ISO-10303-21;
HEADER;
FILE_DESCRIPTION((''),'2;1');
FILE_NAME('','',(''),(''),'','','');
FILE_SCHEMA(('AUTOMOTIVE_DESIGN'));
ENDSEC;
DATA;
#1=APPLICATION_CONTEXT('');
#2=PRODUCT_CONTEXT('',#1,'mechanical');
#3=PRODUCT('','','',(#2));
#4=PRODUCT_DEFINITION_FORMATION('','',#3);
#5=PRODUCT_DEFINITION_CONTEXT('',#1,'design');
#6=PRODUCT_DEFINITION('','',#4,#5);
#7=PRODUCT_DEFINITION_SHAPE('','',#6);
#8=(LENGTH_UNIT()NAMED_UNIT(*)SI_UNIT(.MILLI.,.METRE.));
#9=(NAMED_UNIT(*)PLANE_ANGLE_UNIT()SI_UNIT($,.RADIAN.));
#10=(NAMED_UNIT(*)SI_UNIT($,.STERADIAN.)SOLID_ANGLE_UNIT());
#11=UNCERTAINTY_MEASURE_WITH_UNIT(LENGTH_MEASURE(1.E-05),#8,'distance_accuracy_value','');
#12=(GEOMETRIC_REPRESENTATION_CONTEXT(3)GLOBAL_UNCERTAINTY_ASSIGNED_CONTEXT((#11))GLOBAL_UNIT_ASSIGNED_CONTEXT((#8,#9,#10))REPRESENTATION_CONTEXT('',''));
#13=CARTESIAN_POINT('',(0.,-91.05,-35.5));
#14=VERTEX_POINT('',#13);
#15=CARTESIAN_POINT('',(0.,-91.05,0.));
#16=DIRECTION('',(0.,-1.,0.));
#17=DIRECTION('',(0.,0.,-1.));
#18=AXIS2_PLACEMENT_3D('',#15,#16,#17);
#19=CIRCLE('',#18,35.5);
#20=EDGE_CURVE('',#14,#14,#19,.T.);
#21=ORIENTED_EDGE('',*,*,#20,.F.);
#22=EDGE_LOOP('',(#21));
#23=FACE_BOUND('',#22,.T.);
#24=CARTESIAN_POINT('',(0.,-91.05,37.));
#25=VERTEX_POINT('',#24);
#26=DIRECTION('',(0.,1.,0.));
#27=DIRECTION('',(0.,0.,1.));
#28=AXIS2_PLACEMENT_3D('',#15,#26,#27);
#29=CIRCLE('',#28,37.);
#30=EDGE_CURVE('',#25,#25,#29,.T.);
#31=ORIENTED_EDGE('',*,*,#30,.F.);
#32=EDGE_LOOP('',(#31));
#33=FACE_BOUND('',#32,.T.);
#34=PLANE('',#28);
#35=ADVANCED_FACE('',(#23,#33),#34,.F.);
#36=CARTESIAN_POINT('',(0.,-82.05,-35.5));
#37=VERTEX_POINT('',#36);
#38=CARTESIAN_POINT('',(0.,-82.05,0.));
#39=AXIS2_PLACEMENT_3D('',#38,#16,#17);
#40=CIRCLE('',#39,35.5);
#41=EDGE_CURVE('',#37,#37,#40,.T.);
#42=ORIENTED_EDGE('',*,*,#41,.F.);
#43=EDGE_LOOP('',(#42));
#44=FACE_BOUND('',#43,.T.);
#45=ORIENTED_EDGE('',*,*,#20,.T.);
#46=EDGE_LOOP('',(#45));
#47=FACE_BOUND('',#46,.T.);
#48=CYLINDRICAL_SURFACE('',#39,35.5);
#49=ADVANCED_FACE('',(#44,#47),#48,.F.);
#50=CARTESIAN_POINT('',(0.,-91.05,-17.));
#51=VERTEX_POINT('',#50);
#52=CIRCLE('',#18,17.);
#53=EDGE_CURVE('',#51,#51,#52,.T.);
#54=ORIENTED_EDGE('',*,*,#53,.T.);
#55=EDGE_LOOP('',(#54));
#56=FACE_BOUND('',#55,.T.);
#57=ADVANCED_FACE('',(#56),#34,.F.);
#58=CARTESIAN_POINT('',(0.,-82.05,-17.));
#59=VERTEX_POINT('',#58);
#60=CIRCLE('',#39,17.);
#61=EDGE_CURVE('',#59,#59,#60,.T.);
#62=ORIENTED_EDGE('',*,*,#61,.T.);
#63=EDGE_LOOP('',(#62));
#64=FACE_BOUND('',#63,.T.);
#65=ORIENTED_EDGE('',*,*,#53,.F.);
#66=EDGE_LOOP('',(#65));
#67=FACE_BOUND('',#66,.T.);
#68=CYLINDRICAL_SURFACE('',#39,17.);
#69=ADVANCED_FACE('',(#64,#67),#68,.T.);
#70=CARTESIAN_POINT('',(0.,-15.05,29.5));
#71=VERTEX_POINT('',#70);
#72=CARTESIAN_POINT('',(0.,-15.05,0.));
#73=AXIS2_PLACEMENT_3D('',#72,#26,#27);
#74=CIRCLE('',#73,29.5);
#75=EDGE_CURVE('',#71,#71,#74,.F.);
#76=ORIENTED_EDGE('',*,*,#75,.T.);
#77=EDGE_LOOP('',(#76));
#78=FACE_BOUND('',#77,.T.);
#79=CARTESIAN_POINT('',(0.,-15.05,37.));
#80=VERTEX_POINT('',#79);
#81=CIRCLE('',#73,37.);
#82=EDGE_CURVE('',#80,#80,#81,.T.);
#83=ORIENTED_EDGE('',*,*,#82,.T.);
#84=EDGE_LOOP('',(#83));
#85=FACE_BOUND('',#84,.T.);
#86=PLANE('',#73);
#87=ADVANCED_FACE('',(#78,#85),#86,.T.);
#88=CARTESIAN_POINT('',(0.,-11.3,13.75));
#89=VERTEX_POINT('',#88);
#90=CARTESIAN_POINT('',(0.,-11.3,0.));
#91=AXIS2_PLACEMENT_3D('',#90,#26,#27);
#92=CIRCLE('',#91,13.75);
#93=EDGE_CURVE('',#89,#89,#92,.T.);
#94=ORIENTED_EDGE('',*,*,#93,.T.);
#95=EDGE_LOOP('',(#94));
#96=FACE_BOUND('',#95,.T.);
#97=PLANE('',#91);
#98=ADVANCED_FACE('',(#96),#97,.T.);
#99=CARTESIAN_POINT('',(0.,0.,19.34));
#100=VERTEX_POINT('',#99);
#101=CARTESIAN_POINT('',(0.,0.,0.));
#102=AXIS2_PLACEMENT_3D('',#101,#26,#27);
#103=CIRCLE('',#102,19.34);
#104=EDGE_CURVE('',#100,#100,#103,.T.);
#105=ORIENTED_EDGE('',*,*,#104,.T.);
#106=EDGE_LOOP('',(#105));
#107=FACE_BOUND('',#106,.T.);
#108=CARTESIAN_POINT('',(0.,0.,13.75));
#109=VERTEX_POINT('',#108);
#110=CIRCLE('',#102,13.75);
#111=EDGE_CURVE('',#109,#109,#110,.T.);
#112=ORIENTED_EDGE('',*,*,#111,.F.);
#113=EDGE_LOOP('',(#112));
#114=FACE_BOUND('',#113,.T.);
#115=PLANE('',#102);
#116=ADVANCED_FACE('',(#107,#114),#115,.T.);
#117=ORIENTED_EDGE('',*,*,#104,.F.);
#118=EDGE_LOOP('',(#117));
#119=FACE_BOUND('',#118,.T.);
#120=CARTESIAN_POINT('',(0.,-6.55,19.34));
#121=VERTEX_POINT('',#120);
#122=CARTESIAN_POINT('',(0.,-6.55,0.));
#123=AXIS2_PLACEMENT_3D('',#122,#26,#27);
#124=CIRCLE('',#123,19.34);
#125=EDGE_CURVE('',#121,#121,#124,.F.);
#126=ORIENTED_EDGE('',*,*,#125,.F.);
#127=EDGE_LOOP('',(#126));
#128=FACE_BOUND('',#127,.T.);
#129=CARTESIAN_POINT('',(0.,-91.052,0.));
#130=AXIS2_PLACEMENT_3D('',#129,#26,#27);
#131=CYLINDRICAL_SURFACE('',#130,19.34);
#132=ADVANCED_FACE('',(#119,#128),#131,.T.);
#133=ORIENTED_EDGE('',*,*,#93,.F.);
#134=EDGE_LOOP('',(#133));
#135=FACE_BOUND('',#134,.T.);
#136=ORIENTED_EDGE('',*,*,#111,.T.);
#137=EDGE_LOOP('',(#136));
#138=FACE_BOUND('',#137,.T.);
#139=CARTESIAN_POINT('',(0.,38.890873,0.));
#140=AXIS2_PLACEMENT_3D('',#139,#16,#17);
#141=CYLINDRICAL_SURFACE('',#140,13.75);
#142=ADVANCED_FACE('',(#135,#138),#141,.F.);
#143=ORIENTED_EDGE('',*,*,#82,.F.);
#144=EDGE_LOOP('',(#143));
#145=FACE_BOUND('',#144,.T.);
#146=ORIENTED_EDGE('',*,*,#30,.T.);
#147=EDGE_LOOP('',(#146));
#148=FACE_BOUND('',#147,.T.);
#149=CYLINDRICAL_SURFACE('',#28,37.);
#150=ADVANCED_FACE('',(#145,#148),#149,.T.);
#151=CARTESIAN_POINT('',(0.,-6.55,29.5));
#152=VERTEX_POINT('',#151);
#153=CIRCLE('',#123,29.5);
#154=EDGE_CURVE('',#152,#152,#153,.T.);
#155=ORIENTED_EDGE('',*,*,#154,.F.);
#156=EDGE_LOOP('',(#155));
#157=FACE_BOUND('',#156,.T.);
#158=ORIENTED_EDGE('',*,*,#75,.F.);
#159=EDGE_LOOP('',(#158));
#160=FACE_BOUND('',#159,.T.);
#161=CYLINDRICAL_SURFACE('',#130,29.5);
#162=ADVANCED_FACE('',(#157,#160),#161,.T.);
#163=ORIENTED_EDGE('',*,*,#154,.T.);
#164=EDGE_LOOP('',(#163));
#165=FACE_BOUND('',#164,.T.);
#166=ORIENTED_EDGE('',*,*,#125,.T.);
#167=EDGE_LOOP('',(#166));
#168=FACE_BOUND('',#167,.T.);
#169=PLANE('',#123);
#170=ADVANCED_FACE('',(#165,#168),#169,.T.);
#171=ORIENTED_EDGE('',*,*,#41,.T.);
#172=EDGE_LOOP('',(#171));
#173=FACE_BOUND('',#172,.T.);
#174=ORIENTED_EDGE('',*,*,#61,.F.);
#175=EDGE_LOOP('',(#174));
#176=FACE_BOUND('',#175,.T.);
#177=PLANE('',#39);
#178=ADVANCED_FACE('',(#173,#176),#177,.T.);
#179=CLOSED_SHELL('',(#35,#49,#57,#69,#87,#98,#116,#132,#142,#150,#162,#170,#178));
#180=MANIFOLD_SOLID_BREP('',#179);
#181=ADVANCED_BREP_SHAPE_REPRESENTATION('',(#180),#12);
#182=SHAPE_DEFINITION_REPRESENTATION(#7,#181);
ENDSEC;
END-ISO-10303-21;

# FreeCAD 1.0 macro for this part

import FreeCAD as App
import Part
import Sketcher

doc = App.newDocument("Part")
body = doc.addObject("PartDesign::Body", "Body")

sketch1 = doc.addObject("Sketcher::SketchObject", "Sketch")
body.addObject(sketch1)
sketch1.AttachmentSupport = (doc.XZ_Plane, [""])
sketch1.MapMode = "FlatFace"
sketch1.AttachmentOffset = App.Placement(App.Vector(0, 0, 15.05), App.Rotation())
sketch1.addGeometry(Part.Circle(App.Vector(0, 0, 0), App.Vector(0, 0, 1), 37), False)
sketch1.addConstraint(Sketcher.Constraint("Coincident", 0, 3, -1, 1))
sketch1.addConstraint(Sketcher.Constraint("Diameter", 0, 74.0))
pad1 = doc.addObject("PartDesign::Pad", "Pad")
body.addObject(pad1)
pad1.Profile = sketch1
pad1.Length = 76

sketch2 = doc.addObject("Sketcher::SketchObject", "Sketch001")
body.addObject(sketch2)
sketch2.AttachmentSupport = (doc.XZ_Plane, [""])
sketch2.MapMode = "FlatFace"
sketch2.AttachmentOffset = App.Placement(App.Vector(0, 0, 6.55), App.Rotation())
sketch2.addGeometry(Part.Circle(App.Vector(0, 0, 0), App.Vector(0, 0, 1), 30), False)
sketch2.addConstraint(Sketcher.Constraint("Coincident", 0, 3, -1, 1))
sketch2.addConstraint(Sketcher.Constraint("Diameter", 0, 59.0))
pad2 = doc.addObject("PartDesign::Pad", "Pad001")
body.addObject(pad2)
pad2.Profile = sketch2
pad2.Type = "UpToFirst"

sketch3 = doc.addObject("Sketcher::SketchObject", "Sketch002")
body.addObject(sketch3)
sketch3.AttachmentSupport = (doc.XZ_Plane, [""])
sketch3.MapMode = "FlatFace"
sketch3.addGeometry(Part.Circle(App.Vector(0, 0, 0), App.Vector(0, 0, 1), 19), False)
sketch3.addConstraint(Sketcher.Constraint("Coincident", 0, 3, -1, 1))
sketch3.addConstraint(Sketcher.Constraint("Diameter", 0, 38.68))
pad3 = doc.addObject("PartDesign::Pad", "Pad002")
body.addObject(pad3)
pad3.Profile = sketch3
pad3.Type = "UpToFirst"

sketch4 = doc.addObject("Sketcher::SketchObject", "Sketch003")
body.addObject(sketch4)
sketch4.AttachmentSupport = (doc.XZ_Plane, [""])
sketch4.MapMode = "FlatFace"
sketch4.AttachmentOffset = App.Placement(App.Vector(0, 0, 11.3), App.Rotation())
sketch4.addGeometry(Part.Circle(App.Vector(0, 0, 0), App.Vector(0, 0, 1), 14), False)
sketch4.addConstraint(Sketcher.Constraint("Coincident", 0, 3, -1, 1))
sketch4.addConstraint(Sketcher.Constraint("Diameter", 0, 27.5))
pocket1 = doc.addObject("PartDesign::Pocket", "Pocket")
body.addObject(pocket1)
pocket1.Profile = sketch4
pocket1.Length = 11.3

sketch5 = doc.addObject("Sketcher::SketchObject", "Sketch004")
body.addObject(sketch5)
sketch5.AttachmentSupport = (doc.XZ_Plane, [""])
sketch5.MapMode = "FlatFace"
sketch5.AttachmentOffset = App.Placement(App.Vector(0, 0, 91.05), App.Rotation())
sketch5.addGeometry(Part.Circle(App.Vector(0, 0, 0), App.Vector(0, 0, 1), 36), False)
sketch5.addGeometry(Part.Circle(App.Vector(0, 0, 0), App.Vector(0, 0, 1), 17), False)
sketch5.addConstraint(Sketcher.Constraint("Coincident", 0, 3, -1, 1))
sketch5.addConstraint(Sketcher.Constraint("Coincident", 1, 3, -1, 1))
sketch5.addConstraint(Sketcher.Constraint("Diameter", 0, 71.0))
sketch5.addConstraint(Sketcher.Constraint("Diameter", 1, 34.0))
pocket2 = doc.addObject("PartDesign::Pocket", "Pocket001")
body.addObject(pocket2)
pocket2.Profile = sketch5
pocket2.Length = 9

doc.recompute()
